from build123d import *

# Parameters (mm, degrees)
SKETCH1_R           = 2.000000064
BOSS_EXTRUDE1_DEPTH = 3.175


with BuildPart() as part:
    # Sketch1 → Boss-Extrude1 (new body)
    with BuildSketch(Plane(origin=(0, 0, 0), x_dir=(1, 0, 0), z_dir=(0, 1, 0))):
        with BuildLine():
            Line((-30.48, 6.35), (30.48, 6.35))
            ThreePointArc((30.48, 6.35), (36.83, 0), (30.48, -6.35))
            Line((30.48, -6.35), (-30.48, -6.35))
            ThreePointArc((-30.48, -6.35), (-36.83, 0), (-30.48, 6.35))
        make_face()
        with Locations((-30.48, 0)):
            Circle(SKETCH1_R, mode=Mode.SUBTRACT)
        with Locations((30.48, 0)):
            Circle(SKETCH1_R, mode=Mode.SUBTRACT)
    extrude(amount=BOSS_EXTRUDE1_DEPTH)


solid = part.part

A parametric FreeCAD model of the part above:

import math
import FreeCAD as App
import Part
import Sketcher
from FreeCAD import Vector
Q = App.Units.Quantity

doc = App.newDocument("Part")
body = doc.addObject("PartDesign::Body", "Body")

sketch1 = body.newObject("Sketcher::SketchObject", "Sketch")
sketch1.AttachmentSupport = (doc.getObject("XZ_Plane"), [""])
sketch1.MapMode = "FlatFace"
sketch1.addGeometry(Part.LineSegment(Vector(30.48, -6.35, 0), Vector(-30.48, -6.35, 0)), False)
sketch1.addGeometry(Part.ArcOfCircle(Part.Circle(Vector(-30.48, 0, 0), Vector(0, 0, 1), 6.35), math.radians(90), math.radians(270)), False)
sketch1.addGeometry(Part.LineSegment(Vector(-30.48, 6.35, 0), Vector(30.48, 6.35, 0)), False)
sketch1.addGeometry(Part.ArcOfCircle(Part.Circle(Vector(30.48, 0, 0), Vector(0, 0, 1), 6.35), math.radians(-90), math.radians(90)), False)
sketch1.addGeometry(Part.Circle(Vector(30.48, 0, 0), Vector(0, 0, 1), 2), False)
sketch1.addGeometry(Part.Circle(Vector(-30.48, 0, 0), Vector(0, 0, 1), 2), False)
sketch1.addConstraint(Sketcher.Constraint("Tangent", 0, 2, 1, 2))
sketch1.addConstraint(Sketcher.Constraint("Tangent", 1, 1, 2, 1))
sketch1.addConstraint(Sketcher.Constraint("Tangent", 2, 2, 3, 2))
sketch1.addConstraint(Sketcher.Constraint("Tangent", 3, 1, 0, 1))
sketch1.addConstraint(Sketcher.Constraint("Horizontal", 0))
sketch1.addConstraint(Sketcher.Constraint("Horizontal", 2))
sketch1.addConstraint(Sketcher.Constraint("Coincident", 4, 3, 3, 3))
sketch1.addConstraint(Sketcher.Constraint("Coincident", 5, 3, 1, 3))
sketch1.addConstraint(Sketcher.Constraint("Equal", 4, 5))
sketch1.addConstraint(Sketcher.Constraint("Symmetric", 1, 3, 3, 3, -1, 1))
sketch1.addConstraint(Sketcher.Constraint("Radius", 1, Q("0.25 in")))
sketch1.addConstraint(Sketcher.Constraint("DistanceX", 0, 2, 0, 1, Q("2.4 in")))
sketch1.addConstraint(Sketcher.Constraint("Diameter", 4, 4.0))
pad1 = body.newObject("PartDesign::Pad", "Pad")
pad1.Profile = sketch1
pad1.Length = Q("0.125 in")
pad1.Reversed = True

doc.recompute()
